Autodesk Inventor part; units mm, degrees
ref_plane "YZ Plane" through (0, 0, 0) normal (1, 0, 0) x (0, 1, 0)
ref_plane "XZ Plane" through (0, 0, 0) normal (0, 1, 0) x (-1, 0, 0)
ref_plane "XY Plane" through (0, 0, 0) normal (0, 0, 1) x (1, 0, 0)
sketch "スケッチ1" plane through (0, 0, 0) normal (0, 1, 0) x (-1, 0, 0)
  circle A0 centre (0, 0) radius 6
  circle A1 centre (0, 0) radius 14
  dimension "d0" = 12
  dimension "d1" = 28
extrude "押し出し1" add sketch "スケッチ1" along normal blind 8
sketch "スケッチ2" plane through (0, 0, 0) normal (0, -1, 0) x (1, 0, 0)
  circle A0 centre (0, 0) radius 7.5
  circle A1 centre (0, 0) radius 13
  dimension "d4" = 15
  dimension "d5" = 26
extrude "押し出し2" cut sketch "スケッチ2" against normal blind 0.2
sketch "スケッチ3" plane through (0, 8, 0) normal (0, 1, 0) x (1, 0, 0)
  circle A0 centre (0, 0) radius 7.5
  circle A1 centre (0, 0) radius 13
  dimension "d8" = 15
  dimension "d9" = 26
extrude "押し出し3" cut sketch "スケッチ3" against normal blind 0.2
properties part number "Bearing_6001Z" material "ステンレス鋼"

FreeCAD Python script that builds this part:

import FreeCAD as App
import Part
import Sketcher

V = App.Vector
Q = App.Units.Quantity

doc = App.newDocument("Part")
body = doc.addObject("PartDesign::Body", "Body")

# Sketch on XZ plane
sketch1 = doc.addObject("Sketcher::SketchObject", "Sketch")
body.addObject(sketch1)
sketch1.AttachmentSupport = (doc.XZ_Plane, [""])
sketch1.MapMode = "FlatFace"
sketch1.addGeometry(Part.Circle(V(0, 0, 0), V(0, 0, 1), 14), False)
sketch1.addGeometry(Part.Circle(V(0, 0, 0), V(0, 0, 1), 6), False)
sketch1.addConstraint(Sketcher.Constraint("Coincident", 0, 3, -1, 1))
sketch1.addConstraint(Sketcher.Constraint("Coincident", 1, 3, -1, 1))
sketch1.addConstraint(Sketcher.Constraint("Diameter", 0, Q("28 mm")))
sketch1.addConstraint(Sketcher.Constraint("Diameter", 1, Q("12 mm")))
pad1 = doc.addObject("PartDesign::Pad", "Pad")
body.addObject(pad1)
pad1.Profile = sketch1
pad1.Length = 8
pad1.Reversed = True

# Sketch on XZ plane
sketch2 = doc.addObject("Sketcher::SketchObject", "Sketch001")
body.addObject(sketch2)
sketch2.AttachmentSupport = (doc.XZ_Plane, [""])
sketch2.MapMode = "FlatFace"
sketch2.addGeometry(Part.Circle(V(0, 0, 0), V(0, 0, 1), 13), False)
sketch2.addGeometry(Part.Circle(V(0, 0, 0), V(0, 0, 1), 8), False)
sketch2.addConstraint(Sketcher.Constraint("Coincident", 0, 3, -1, 1))
sketch2.addConstraint(Sketcher.Constraint("Coincident", 1, 3, -1, 1))
sketch2.addConstraint(Sketcher.Constraint("Diameter", 0, Q("26 mm")))
sketch2.addConstraint(Sketcher.Constraint("Diameter", 1, Q("15 mm")))
pocket1 = doc.addObject("PartDesign::Pocket", "Pocket")
body.addObject(pocket1)
pocket1.Profile = sketch2
pocket1.Length = 0.2

# Sketch on XZ plane
sketch3 = doc.addObject("Sketcher::SketchObject", "Sketch002")
body.addObject(sketch3)
sketch3.AttachmentSupport = (doc.XZ_Plane, [""])
sketch3.MapMode = "FlatFace"
sketch3.AttachmentOffset = App.Placement(V(0, 0, -8), App.Rotation())
sketch3.addGeometry(Part.Circle(V(0, 0, 0), V(0, 0, 1), 13), False)
sketch3.addGeometry(Part.Circle(V(0, 0, 0), V(0, 0, 1), 8), False)
sketch3.addConstraint(Sketcher.Constraint("Coincident", 0, 3, -1, 1))
sketch3.addConstraint(Sketcher.Constraint("Coincident", 1, 3, -1, 1))
sketch3.addConstraint(Sketcher.Constraint("Diameter", 0, Q("26 mm")))
sketch3.addConstraint(Sketcher.Constraint("Diameter", 1, Q("15 mm")))
pocket2 = doc.addObject("PartDesign::Pocket", "Pocket001")
body.addObject(pocket2)
pocket2.Profile = sketch3
pocket2.Length = 0.2
pocket2.Reversed = True

doc.recompute()
